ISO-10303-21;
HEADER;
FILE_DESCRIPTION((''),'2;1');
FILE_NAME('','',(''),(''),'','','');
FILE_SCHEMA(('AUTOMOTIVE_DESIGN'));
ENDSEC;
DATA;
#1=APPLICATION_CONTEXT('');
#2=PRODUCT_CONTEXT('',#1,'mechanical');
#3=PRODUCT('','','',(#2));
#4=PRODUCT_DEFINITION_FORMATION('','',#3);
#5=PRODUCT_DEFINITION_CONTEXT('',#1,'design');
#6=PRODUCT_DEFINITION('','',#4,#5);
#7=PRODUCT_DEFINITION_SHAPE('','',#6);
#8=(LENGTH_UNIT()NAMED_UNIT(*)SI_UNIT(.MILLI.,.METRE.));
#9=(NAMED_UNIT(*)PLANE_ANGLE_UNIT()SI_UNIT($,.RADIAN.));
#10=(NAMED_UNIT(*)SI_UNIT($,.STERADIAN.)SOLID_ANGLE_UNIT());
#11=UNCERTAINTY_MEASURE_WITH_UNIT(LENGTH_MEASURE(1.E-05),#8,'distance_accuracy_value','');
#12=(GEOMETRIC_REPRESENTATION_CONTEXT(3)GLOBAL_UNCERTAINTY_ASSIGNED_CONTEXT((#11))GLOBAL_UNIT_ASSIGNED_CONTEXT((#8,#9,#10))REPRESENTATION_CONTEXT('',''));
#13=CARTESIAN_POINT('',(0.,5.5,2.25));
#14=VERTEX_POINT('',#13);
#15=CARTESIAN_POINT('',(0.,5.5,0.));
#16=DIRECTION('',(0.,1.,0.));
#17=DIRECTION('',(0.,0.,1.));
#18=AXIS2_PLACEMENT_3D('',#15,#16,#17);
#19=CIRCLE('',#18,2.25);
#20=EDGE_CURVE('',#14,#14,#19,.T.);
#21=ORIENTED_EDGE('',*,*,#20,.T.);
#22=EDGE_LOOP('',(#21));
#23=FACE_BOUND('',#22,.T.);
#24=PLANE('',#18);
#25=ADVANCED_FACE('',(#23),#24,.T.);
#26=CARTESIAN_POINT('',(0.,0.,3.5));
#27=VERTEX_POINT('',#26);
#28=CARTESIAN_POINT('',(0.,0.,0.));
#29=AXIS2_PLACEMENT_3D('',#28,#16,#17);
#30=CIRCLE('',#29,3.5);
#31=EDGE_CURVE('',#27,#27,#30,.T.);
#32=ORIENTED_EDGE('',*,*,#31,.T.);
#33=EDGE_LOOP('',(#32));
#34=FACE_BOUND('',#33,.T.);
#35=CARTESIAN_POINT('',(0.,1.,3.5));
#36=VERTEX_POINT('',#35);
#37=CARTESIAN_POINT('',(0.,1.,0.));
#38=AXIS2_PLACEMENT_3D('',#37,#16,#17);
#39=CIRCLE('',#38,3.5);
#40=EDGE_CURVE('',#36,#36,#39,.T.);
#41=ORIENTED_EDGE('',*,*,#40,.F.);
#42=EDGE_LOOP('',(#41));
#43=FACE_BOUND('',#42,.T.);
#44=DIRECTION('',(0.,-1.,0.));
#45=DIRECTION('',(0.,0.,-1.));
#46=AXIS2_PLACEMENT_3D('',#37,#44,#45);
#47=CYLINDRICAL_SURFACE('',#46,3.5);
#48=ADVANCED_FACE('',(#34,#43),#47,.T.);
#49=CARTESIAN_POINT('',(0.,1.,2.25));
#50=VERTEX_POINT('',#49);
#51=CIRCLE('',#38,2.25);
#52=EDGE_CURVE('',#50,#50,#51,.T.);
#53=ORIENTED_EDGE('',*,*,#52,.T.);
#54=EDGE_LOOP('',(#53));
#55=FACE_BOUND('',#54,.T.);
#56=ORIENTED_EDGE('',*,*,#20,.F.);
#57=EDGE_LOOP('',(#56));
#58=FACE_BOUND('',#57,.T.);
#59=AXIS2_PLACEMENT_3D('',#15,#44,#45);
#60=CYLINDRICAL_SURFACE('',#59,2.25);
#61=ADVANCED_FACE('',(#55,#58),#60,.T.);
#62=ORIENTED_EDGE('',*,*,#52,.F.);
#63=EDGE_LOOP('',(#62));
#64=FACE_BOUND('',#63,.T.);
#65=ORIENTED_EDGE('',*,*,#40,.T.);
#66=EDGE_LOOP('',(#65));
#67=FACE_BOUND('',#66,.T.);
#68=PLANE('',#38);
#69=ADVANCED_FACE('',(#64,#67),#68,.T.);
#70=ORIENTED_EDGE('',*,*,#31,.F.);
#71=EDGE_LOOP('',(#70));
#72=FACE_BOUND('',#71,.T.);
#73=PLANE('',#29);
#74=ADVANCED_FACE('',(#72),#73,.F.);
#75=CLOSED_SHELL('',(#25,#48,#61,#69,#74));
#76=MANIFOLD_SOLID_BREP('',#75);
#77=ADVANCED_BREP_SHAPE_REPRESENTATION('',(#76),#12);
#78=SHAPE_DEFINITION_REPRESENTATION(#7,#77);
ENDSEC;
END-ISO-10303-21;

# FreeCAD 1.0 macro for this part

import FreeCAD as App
import Part
import Sketcher

V = App.Vector

doc = App.newDocument("Part")
body = doc.addObject("PartDesign::Body", "Body")

# Sketch on XZ plane
sketch1 = body.newObject("Sketcher::SketchObject", "Sketch")
sketch1.AttachmentSupport = (doc.getObject("XZ_Plane"), [""])
sketch1.MapMode = "FlatFace"
sketch1.addGeometry(Part.Circle(V(0, 0, 0), V(0, 0, 1), 3.5), False)
sketch1.addConstraint(Sketcher.Constraint("Coincident", 0, 3, -1, 1))
sketch1.addConstraint(Sketcher.Constraint("Diameter", 0, 7.0))
pad1 = body.newObject("PartDesign::Pad", "Pad")
pad1.Profile = sketch1
pad1.Length = 1
pad1.Reversed = True

# Sketch on XZ plane
sketch2 = body.newObject("Sketcher::SketchObject", "Sketch001")
sketch2.AttachmentSupport = (doc.getObject("XZ_Plane"), [""])
sketch2.MapMode = "FlatFace"
sketch2.AttachmentOffset = App.Placement(V(0, 0, -1), App.Rotation())
sketch2.addGeometry(Part.Circle(V(0, 0, 0), V(0, 0, 1), 2.2), False)
sketch2.addConstraint(Sketcher.Constraint("Coincident", 0, 3, -1, 1))
sketch2.addConstraint(Sketcher.Constraint("Diameter", 0, 4.5))
pad2 = body.newObject("PartDesign::Pad", "Pad001")
pad2.Profile = sketch2
pad2.Length = 4.5
pad2.Reversed = True

doc.recompute()
